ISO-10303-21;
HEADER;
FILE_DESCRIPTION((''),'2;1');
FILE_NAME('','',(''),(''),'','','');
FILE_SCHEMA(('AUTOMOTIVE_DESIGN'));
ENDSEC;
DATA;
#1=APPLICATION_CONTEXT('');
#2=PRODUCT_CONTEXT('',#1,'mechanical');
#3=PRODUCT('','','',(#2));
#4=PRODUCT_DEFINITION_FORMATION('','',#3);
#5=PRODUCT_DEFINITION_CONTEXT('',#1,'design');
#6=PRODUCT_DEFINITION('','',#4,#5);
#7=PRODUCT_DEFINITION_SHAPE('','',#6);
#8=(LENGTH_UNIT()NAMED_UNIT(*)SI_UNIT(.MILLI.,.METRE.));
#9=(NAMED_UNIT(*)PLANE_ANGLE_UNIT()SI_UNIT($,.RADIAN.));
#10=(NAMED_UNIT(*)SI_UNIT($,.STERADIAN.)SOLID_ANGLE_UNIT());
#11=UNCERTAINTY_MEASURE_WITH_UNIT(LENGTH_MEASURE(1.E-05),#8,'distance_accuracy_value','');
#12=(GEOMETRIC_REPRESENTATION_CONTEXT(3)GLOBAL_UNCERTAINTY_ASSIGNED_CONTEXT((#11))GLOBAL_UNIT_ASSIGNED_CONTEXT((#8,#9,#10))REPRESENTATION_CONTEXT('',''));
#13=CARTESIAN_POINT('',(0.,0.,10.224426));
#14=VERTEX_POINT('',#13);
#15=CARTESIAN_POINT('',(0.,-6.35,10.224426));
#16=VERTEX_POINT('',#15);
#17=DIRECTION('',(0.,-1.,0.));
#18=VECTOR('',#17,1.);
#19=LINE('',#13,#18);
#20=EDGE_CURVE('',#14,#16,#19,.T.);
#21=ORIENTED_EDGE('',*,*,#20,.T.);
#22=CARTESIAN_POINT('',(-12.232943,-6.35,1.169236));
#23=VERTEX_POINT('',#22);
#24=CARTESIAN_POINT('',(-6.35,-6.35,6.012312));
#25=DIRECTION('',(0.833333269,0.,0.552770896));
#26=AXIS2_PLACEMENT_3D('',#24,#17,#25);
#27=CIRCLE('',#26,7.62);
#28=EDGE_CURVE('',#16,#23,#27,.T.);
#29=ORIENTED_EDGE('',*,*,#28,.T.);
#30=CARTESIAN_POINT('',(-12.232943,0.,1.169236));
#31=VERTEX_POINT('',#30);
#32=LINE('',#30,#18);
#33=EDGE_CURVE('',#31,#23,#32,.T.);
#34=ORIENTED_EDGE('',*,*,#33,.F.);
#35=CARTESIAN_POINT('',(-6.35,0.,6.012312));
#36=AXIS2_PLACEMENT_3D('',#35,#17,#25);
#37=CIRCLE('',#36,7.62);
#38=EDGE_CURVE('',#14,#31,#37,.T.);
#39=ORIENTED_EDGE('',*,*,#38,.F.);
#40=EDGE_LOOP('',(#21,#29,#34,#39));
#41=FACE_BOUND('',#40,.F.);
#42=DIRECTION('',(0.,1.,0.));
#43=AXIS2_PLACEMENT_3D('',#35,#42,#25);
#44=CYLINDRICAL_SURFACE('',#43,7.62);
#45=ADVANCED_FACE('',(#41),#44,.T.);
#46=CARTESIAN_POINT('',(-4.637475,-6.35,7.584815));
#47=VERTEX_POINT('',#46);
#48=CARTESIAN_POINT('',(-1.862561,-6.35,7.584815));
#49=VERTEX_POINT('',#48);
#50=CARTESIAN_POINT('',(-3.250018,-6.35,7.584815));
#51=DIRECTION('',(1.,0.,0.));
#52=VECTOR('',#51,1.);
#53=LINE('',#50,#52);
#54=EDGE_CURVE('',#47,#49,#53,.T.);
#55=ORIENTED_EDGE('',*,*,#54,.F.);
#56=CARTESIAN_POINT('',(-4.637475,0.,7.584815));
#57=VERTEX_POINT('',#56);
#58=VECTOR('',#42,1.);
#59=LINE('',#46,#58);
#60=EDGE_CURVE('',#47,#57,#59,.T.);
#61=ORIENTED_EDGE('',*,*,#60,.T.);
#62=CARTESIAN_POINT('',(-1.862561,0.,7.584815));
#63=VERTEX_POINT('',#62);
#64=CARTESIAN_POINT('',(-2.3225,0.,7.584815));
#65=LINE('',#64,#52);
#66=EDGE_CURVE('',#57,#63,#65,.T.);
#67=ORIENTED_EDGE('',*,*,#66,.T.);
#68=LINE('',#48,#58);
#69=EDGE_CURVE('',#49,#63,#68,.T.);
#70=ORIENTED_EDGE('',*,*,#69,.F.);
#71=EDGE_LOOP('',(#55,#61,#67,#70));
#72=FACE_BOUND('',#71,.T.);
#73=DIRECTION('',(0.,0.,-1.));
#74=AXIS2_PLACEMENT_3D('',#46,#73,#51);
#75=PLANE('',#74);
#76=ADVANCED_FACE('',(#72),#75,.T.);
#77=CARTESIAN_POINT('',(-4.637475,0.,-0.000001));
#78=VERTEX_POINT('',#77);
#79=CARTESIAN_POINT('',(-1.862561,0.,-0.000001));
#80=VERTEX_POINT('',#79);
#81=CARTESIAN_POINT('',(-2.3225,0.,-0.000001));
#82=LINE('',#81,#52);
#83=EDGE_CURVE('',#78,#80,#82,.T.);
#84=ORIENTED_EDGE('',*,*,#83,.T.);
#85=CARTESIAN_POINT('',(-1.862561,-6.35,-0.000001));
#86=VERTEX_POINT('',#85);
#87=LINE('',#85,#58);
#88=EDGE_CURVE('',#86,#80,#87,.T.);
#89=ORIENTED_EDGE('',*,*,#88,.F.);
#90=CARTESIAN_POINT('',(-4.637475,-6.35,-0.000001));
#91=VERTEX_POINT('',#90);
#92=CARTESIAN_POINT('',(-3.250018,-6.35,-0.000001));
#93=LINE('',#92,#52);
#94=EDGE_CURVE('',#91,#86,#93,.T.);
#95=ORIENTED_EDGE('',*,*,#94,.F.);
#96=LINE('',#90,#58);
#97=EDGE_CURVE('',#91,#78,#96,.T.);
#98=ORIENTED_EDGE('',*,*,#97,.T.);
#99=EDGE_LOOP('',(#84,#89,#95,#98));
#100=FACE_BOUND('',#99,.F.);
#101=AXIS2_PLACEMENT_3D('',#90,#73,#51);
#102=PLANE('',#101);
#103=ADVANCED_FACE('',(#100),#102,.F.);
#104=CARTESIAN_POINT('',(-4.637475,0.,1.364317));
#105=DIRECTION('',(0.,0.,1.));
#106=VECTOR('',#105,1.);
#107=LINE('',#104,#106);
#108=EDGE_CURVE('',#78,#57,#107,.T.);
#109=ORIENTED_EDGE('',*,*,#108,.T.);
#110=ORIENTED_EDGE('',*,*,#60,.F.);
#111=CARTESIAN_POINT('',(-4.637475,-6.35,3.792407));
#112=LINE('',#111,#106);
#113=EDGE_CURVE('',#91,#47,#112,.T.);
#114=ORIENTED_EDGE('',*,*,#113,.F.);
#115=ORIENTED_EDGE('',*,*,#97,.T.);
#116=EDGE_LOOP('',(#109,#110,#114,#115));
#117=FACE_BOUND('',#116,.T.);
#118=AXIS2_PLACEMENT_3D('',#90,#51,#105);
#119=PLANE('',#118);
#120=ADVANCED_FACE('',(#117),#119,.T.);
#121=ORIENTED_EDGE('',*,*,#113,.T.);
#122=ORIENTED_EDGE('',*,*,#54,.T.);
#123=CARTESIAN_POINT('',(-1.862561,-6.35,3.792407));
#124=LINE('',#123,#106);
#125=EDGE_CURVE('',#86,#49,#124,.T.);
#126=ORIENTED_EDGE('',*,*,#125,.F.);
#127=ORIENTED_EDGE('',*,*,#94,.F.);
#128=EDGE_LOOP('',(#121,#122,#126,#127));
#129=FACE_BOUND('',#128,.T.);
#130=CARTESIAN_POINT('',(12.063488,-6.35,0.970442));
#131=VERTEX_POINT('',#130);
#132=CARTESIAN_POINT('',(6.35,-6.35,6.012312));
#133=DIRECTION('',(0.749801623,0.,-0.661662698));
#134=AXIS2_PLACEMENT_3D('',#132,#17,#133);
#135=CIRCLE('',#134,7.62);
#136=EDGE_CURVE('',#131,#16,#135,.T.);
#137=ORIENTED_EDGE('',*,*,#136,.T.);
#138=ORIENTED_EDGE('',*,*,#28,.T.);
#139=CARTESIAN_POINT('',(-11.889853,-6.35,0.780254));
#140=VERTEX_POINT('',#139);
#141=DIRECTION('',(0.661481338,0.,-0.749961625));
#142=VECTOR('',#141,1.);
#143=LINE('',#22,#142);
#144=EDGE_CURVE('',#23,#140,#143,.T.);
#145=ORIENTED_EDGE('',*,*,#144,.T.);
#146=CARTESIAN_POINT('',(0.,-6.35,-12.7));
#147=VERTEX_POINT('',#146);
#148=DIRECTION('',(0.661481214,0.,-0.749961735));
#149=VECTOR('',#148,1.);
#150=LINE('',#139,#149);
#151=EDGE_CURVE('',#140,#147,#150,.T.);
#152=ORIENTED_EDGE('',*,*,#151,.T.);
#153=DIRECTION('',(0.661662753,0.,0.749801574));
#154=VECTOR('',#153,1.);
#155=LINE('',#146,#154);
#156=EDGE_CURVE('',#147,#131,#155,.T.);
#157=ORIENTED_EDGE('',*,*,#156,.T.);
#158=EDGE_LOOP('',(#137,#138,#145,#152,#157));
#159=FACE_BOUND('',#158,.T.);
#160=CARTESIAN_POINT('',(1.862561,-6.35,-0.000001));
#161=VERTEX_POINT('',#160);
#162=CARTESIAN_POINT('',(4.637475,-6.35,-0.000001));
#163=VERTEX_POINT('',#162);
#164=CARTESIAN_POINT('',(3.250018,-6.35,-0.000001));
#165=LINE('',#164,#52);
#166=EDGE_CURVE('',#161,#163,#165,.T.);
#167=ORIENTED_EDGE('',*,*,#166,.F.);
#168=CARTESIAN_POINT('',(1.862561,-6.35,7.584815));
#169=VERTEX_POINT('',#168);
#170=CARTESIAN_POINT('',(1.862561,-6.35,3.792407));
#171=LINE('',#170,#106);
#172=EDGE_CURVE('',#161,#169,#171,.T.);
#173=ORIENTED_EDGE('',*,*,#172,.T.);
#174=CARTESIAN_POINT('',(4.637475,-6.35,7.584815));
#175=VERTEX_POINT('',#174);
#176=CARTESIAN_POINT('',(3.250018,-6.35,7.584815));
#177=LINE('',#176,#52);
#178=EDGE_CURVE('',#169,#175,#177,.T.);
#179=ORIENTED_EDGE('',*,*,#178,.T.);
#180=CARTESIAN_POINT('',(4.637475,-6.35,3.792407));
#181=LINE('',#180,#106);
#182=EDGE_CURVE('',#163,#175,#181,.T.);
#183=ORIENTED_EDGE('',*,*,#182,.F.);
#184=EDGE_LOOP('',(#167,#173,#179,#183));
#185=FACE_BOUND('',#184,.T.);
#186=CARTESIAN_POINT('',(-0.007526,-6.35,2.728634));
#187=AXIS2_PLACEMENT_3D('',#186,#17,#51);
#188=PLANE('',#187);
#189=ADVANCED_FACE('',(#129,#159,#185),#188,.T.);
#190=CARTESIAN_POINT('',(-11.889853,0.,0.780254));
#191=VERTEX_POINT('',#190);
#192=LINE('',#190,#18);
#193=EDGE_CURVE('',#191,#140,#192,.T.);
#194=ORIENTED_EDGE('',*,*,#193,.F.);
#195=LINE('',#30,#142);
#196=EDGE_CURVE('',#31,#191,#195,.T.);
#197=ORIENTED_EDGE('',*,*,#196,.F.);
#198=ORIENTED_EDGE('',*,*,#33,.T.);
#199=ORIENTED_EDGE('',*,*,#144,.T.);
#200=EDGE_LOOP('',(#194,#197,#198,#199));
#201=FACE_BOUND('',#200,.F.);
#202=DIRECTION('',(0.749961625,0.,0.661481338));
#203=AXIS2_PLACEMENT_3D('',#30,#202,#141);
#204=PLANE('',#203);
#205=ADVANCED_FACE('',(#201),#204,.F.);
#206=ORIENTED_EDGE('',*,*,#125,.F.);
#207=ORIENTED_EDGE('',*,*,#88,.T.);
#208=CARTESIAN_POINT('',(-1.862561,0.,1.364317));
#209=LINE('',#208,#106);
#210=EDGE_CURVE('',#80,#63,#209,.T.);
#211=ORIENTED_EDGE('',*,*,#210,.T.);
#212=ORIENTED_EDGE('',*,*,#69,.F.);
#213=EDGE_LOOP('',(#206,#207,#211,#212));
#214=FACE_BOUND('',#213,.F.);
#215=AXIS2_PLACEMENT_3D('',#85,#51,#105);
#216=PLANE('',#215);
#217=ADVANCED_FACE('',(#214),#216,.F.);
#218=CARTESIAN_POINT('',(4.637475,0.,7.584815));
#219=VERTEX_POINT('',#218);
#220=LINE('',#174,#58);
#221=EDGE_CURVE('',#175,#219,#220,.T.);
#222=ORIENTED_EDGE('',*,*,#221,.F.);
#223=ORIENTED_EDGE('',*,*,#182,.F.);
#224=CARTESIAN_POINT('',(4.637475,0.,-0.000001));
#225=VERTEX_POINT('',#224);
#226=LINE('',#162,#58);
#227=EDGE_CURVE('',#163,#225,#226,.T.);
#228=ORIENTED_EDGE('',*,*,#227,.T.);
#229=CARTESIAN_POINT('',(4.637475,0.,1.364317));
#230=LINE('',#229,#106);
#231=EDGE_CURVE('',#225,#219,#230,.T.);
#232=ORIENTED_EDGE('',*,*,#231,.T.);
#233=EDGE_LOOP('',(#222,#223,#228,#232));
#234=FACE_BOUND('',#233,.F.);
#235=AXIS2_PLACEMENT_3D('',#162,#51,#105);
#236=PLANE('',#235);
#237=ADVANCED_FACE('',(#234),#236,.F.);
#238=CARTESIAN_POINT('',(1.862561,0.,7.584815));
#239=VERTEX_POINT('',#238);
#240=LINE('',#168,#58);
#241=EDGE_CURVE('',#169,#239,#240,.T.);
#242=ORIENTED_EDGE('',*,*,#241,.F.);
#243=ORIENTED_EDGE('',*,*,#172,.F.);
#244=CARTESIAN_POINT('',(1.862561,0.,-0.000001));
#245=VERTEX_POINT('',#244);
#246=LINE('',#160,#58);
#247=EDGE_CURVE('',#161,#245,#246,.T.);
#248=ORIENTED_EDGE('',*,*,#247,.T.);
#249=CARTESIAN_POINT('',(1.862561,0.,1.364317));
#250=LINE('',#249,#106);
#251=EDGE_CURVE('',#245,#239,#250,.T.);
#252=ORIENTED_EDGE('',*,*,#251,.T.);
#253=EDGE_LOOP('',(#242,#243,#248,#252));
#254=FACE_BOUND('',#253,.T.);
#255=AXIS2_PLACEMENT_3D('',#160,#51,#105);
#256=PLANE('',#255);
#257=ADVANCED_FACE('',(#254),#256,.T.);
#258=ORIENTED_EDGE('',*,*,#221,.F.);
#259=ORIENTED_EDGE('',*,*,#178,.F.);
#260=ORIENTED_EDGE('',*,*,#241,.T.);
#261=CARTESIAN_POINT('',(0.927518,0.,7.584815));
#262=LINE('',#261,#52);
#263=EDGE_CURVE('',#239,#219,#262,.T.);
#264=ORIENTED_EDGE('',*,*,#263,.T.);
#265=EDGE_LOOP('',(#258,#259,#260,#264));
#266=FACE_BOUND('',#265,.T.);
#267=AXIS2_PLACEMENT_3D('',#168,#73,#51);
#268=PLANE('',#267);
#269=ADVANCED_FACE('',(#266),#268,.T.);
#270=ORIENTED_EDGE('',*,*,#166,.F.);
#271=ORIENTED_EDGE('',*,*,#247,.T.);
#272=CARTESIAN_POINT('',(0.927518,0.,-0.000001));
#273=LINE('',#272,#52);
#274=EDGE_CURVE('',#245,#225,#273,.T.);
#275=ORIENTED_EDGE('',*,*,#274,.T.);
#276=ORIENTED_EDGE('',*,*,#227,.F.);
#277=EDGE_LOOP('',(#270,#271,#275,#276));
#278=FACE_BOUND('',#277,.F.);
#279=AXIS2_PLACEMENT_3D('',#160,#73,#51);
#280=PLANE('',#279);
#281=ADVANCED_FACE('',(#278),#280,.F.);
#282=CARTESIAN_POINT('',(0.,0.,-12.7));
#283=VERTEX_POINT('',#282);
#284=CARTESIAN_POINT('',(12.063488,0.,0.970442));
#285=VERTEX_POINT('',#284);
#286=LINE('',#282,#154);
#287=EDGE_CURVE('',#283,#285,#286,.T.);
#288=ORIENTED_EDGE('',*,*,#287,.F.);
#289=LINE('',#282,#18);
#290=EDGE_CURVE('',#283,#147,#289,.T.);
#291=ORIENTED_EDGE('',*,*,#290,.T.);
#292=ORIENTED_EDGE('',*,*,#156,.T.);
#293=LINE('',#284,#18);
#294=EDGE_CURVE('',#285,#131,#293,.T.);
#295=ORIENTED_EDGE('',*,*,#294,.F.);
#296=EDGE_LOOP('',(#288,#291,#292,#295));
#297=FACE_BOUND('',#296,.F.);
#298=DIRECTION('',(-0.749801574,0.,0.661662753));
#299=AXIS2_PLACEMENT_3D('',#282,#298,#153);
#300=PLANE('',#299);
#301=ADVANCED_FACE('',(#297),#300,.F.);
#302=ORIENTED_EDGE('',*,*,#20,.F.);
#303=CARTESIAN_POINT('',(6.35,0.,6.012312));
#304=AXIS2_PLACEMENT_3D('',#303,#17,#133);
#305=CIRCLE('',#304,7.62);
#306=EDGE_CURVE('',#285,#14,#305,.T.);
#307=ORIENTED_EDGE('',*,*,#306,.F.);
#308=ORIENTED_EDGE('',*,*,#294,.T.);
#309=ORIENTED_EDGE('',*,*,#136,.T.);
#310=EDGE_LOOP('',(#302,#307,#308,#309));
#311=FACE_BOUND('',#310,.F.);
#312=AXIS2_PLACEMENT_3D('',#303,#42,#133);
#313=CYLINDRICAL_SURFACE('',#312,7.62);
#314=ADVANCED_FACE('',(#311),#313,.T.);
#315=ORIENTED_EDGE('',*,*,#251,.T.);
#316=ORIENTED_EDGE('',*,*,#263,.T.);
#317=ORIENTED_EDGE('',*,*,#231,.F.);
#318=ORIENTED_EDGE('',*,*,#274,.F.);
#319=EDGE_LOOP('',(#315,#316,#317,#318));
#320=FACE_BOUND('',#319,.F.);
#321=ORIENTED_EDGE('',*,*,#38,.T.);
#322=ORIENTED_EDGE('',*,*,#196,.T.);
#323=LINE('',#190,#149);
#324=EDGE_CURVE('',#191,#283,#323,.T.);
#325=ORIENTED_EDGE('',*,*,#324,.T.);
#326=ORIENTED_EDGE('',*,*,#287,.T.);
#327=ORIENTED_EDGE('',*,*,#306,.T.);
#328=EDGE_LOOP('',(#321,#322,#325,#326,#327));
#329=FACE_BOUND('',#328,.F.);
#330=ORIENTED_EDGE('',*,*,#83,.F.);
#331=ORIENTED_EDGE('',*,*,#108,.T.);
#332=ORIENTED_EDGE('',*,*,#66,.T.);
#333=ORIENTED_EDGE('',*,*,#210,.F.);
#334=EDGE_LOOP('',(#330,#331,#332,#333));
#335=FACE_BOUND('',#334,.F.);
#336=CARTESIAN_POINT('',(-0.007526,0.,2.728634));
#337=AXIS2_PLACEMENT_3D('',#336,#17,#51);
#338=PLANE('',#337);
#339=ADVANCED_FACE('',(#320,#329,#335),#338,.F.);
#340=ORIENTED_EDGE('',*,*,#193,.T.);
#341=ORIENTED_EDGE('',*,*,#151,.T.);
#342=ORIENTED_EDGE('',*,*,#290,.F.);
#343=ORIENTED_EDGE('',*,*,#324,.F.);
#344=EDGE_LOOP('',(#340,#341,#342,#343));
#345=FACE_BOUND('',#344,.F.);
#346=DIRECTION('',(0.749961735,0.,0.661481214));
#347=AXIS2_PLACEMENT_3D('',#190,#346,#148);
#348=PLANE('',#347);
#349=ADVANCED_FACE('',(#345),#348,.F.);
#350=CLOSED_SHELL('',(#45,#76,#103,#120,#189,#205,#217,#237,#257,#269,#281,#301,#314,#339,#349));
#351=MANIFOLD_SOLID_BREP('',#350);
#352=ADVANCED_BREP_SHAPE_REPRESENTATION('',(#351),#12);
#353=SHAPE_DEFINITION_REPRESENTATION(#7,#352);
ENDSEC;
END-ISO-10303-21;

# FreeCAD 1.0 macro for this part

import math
import FreeCAD as App
import Part
import Sketcher
Q = App.Units.Quantity


def add_polygon(sketch, points):
    """Adds a closed chain of lines whose ends are joined by coincident constraints."""
    first, n = sketch.GeometryCount, len(points)
    for a, b in zip(points, points[1:] + points[:1]):
        sketch.addGeometry(Part.LineSegment(App.Vector(*a, 0), App.Vector(*b, 0)), False)
    for i in range(n):
        sketch.addConstraint(Sketcher.Constraint("Coincident", first + i, 2, first + (i + 1) % n, 1))

doc = App.newDocument("Part")
body = doc.addObject("PartDesign::Body", "Body")

# Sketch on XZ plane
sketch1 = doc.addObject("Sketcher::SketchObject", "Sketch")
body.addObject(sketch1)
sketch1.AttachmentSupport = (doc.XZ_Plane, [""])
sketch1.MapMode = "FlatFace"
sketch1.addGeometry(Part.ArcOfCircle(Part.Circle(App.Vector(6.3, 6, 0), App.Vector(0, 0, 1), 7.6), math.radians(-41), math.radians(146)), False)
sketch1.addGeometry(Part.ArcOfCircle(Part.Circle(App.Vector(-6.3, 6, 0), App.Vector(0, 0, 1), 7.6), math.radians(34), math.radians(219)), False)
sketch1.addGeometry(Part.LineSegment(App.Vector(-12.2, 1.2, 0), App.Vector(-11.9, 0.8, 0)), False)
sketch1.addGeometry(Part.LineSegment(App.Vector(-11.9, 0.8, 0), App.Vector(0, -12.7, 0)), False)
sketch1.addGeometry(Part.LineSegment(App.Vector(0, -12.7, 0), App.Vector(12.1, 1, 0)), False)
sketch1.addConstraint(Sketcher.Constraint("Coincident", 0, 2, 1, 1))
sketch1.addConstraint(Sketcher.Constraint("Coincident", 1, 2, 2, 1))
sketch1.addConstraint(Sketcher.Constraint("Coincident", 2, 2, 3, 1))
sketch1.addConstraint(Sketcher.Constraint("Coincident", 3, 2, 4, 1))
sketch1.addConstraint(Sketcher.Constraint("Tangent", 4, 2, 0, 1))
sketch1.addConstraint(Sketcher.Constraint("Equal", 0, 1))
sketch1.addConstraint(Sketcher.Constraint("Symmetric", 0, 3, 1, 3, -2))
sketch1.addConstraint(Sketcher.Constraint("PointOnObject", 3, 2, -2))
sketch1.addConstraint(Sketcher.Constraint("Parallel", 2, 3))
sketch1.addConstraint(Sketcher.Constraint("Radius", 0, Q("0.3 in")))
sketch1.addConstraint(Sketcher.Constraint("DistanceY", 3, 2, -1, 1, Q("0.5 in")))
sketch1.addConstraint(Sketcher.Constraint("DistanceX", 1, 3, 0, 3, Q("0.5 in")))
sketch1.addConstraint(Sketcher.Constraint("Distance", 2, 0.518669))
sketch1.addConstraint(Sketcher.Constraint("Distance", 3, 17.974589))
sketch1.addConstraint(Sketcher.Constraint("Distance", 4, 18.23208))
pad1 = doc.addObject("PartDesign::Pad", "Pad")
body.addObject(pad1)
pad1.Profile = sketch1
pad1.Length = Q("0.25 in")

# Sketch on XZ plane
sketch2 = doc.addObject("Sketcher::SketchObject", "Sketch001")
body.addObject(sketch2)
sketch2.AttachmentSupport = (doc.XZ_Plane, [""])
sketch2.MapMode = "FlatFace"
sketch2.AttachmentOffset = App.Placement(App.Vector(0, 0, 0.25 * 25.4), App.Rotation())
add_polygon(sketch2, [(-4.6, 7.6), (-4.6, 0), (-1.9, 0), (-1.9, 7.6)])  # lines 0-3
add_polygon(sketch2, [(1.9, 7.6), (1.9, 0), (4.6, 0), (4.6, 7.6)])  # lines 4-7
sketch2.addConstraint(Sketcher.Constraint("Vertical", 0))
sketch2.addConstraint(Sketcher.Constraint("Horizontal", 1))
sketch2.addConstraint(Sketcher.Constraint("Vertical", 2))
sketch2.addConstraint(Sketcher.Constraint("Horizontal", 3))
sketch2.addConstraint(Sketcher.Constraint("Vertical", 4))
sketch2.addConstraint(Sketcher.Constraint("Horizontal", 5))
sketch2.addConstraint(Sketcher.Constraint("Vertical", 6))
sketch2.addConstraint(Sketcher.Constraint("Horizontal", 7))
sketch2.addConstraint(Sketcher.Constraint("Symmetric", 1, 2, 4, 2, -1, 1))
sketch2.addConstraint(Sketcher.Constraint("Symmetric", 0, 2, 5, 2, -2))
sketch2.addConstraint(Sketcher.Constraint("Horizontal", 3, 2, 6, 2))
sketch2.addConstraint(Sketcher.Constraint("DistanceX", 1, 1, 1, 2, 2.774914))
sketch2.addConstraint(Sketcher.Constraint("DistanceY", 0, 2, 0, 1, 7.584815))
sketch2.addConstraint(Sketcher.Constraint("DistanceX", 1, 2, -1, 1, 1.862561))
pocket1 = doc.addObject("PartDesign::Pocket", "Pocket")
body.addObject(pocket1)
pocket1.Profile = sketch2
pocket1.Length = Q("1 in")

doc.recompute()
